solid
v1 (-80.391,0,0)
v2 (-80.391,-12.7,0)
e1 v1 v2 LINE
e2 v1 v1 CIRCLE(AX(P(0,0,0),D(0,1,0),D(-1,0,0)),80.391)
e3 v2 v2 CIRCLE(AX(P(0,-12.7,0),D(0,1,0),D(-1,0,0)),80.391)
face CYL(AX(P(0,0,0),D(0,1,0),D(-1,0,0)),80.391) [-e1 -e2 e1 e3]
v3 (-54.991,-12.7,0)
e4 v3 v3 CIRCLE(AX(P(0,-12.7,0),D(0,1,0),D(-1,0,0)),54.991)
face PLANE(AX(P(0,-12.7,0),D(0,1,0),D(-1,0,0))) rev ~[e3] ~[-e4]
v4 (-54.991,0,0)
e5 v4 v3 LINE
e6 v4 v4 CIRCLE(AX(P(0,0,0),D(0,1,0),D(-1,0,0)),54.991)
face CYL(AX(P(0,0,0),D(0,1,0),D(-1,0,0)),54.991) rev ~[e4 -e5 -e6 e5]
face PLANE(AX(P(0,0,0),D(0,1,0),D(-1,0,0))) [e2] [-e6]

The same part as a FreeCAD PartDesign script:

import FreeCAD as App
import Part
import Sketcher
Q = App.Units.Quantity

doc = App.newDocument("Part")
body = doc.addObject("PartDesign::Body", "Body")

sketch1 = body.newObject("Sketcher::SketchObject", "Sketch")
sketch1.AttachmentSupport = (doc.getObject("XZ_Plane"), [""])
sketch1.MapMode = "FlatFace"
sketch1.addGeometry(Part.Circle(App.Vector(0, 0, 0), App.Vector(0, 0, 1), 80.391), False)
sketch1.addGeometry(Part.Circle(App.Vector(0, 0, 0), App.Vector(0, 0, 1), 54.991), False)
sketch1.addConstraint(Sketcher.Constraint("Coincident", 0, 3, -1, 1))
sketch1.addConstraint(Sketcher.Constraint("Coincident", 1, 3, -1, 1))
sketch1.addConstraint(Sketcher.Constraint("Diameter", 0, Q("6.33 in")))
sketch1.addConstraint(Sketcher.Constraint("Diameter", 1, Q("4.33 in")))
pad1 = body.newObject("PartDesign::Pad", "Pad")
pad1.Profile = sketch1
pad1.Length = Q("0.5 in")

doc.recompute()
